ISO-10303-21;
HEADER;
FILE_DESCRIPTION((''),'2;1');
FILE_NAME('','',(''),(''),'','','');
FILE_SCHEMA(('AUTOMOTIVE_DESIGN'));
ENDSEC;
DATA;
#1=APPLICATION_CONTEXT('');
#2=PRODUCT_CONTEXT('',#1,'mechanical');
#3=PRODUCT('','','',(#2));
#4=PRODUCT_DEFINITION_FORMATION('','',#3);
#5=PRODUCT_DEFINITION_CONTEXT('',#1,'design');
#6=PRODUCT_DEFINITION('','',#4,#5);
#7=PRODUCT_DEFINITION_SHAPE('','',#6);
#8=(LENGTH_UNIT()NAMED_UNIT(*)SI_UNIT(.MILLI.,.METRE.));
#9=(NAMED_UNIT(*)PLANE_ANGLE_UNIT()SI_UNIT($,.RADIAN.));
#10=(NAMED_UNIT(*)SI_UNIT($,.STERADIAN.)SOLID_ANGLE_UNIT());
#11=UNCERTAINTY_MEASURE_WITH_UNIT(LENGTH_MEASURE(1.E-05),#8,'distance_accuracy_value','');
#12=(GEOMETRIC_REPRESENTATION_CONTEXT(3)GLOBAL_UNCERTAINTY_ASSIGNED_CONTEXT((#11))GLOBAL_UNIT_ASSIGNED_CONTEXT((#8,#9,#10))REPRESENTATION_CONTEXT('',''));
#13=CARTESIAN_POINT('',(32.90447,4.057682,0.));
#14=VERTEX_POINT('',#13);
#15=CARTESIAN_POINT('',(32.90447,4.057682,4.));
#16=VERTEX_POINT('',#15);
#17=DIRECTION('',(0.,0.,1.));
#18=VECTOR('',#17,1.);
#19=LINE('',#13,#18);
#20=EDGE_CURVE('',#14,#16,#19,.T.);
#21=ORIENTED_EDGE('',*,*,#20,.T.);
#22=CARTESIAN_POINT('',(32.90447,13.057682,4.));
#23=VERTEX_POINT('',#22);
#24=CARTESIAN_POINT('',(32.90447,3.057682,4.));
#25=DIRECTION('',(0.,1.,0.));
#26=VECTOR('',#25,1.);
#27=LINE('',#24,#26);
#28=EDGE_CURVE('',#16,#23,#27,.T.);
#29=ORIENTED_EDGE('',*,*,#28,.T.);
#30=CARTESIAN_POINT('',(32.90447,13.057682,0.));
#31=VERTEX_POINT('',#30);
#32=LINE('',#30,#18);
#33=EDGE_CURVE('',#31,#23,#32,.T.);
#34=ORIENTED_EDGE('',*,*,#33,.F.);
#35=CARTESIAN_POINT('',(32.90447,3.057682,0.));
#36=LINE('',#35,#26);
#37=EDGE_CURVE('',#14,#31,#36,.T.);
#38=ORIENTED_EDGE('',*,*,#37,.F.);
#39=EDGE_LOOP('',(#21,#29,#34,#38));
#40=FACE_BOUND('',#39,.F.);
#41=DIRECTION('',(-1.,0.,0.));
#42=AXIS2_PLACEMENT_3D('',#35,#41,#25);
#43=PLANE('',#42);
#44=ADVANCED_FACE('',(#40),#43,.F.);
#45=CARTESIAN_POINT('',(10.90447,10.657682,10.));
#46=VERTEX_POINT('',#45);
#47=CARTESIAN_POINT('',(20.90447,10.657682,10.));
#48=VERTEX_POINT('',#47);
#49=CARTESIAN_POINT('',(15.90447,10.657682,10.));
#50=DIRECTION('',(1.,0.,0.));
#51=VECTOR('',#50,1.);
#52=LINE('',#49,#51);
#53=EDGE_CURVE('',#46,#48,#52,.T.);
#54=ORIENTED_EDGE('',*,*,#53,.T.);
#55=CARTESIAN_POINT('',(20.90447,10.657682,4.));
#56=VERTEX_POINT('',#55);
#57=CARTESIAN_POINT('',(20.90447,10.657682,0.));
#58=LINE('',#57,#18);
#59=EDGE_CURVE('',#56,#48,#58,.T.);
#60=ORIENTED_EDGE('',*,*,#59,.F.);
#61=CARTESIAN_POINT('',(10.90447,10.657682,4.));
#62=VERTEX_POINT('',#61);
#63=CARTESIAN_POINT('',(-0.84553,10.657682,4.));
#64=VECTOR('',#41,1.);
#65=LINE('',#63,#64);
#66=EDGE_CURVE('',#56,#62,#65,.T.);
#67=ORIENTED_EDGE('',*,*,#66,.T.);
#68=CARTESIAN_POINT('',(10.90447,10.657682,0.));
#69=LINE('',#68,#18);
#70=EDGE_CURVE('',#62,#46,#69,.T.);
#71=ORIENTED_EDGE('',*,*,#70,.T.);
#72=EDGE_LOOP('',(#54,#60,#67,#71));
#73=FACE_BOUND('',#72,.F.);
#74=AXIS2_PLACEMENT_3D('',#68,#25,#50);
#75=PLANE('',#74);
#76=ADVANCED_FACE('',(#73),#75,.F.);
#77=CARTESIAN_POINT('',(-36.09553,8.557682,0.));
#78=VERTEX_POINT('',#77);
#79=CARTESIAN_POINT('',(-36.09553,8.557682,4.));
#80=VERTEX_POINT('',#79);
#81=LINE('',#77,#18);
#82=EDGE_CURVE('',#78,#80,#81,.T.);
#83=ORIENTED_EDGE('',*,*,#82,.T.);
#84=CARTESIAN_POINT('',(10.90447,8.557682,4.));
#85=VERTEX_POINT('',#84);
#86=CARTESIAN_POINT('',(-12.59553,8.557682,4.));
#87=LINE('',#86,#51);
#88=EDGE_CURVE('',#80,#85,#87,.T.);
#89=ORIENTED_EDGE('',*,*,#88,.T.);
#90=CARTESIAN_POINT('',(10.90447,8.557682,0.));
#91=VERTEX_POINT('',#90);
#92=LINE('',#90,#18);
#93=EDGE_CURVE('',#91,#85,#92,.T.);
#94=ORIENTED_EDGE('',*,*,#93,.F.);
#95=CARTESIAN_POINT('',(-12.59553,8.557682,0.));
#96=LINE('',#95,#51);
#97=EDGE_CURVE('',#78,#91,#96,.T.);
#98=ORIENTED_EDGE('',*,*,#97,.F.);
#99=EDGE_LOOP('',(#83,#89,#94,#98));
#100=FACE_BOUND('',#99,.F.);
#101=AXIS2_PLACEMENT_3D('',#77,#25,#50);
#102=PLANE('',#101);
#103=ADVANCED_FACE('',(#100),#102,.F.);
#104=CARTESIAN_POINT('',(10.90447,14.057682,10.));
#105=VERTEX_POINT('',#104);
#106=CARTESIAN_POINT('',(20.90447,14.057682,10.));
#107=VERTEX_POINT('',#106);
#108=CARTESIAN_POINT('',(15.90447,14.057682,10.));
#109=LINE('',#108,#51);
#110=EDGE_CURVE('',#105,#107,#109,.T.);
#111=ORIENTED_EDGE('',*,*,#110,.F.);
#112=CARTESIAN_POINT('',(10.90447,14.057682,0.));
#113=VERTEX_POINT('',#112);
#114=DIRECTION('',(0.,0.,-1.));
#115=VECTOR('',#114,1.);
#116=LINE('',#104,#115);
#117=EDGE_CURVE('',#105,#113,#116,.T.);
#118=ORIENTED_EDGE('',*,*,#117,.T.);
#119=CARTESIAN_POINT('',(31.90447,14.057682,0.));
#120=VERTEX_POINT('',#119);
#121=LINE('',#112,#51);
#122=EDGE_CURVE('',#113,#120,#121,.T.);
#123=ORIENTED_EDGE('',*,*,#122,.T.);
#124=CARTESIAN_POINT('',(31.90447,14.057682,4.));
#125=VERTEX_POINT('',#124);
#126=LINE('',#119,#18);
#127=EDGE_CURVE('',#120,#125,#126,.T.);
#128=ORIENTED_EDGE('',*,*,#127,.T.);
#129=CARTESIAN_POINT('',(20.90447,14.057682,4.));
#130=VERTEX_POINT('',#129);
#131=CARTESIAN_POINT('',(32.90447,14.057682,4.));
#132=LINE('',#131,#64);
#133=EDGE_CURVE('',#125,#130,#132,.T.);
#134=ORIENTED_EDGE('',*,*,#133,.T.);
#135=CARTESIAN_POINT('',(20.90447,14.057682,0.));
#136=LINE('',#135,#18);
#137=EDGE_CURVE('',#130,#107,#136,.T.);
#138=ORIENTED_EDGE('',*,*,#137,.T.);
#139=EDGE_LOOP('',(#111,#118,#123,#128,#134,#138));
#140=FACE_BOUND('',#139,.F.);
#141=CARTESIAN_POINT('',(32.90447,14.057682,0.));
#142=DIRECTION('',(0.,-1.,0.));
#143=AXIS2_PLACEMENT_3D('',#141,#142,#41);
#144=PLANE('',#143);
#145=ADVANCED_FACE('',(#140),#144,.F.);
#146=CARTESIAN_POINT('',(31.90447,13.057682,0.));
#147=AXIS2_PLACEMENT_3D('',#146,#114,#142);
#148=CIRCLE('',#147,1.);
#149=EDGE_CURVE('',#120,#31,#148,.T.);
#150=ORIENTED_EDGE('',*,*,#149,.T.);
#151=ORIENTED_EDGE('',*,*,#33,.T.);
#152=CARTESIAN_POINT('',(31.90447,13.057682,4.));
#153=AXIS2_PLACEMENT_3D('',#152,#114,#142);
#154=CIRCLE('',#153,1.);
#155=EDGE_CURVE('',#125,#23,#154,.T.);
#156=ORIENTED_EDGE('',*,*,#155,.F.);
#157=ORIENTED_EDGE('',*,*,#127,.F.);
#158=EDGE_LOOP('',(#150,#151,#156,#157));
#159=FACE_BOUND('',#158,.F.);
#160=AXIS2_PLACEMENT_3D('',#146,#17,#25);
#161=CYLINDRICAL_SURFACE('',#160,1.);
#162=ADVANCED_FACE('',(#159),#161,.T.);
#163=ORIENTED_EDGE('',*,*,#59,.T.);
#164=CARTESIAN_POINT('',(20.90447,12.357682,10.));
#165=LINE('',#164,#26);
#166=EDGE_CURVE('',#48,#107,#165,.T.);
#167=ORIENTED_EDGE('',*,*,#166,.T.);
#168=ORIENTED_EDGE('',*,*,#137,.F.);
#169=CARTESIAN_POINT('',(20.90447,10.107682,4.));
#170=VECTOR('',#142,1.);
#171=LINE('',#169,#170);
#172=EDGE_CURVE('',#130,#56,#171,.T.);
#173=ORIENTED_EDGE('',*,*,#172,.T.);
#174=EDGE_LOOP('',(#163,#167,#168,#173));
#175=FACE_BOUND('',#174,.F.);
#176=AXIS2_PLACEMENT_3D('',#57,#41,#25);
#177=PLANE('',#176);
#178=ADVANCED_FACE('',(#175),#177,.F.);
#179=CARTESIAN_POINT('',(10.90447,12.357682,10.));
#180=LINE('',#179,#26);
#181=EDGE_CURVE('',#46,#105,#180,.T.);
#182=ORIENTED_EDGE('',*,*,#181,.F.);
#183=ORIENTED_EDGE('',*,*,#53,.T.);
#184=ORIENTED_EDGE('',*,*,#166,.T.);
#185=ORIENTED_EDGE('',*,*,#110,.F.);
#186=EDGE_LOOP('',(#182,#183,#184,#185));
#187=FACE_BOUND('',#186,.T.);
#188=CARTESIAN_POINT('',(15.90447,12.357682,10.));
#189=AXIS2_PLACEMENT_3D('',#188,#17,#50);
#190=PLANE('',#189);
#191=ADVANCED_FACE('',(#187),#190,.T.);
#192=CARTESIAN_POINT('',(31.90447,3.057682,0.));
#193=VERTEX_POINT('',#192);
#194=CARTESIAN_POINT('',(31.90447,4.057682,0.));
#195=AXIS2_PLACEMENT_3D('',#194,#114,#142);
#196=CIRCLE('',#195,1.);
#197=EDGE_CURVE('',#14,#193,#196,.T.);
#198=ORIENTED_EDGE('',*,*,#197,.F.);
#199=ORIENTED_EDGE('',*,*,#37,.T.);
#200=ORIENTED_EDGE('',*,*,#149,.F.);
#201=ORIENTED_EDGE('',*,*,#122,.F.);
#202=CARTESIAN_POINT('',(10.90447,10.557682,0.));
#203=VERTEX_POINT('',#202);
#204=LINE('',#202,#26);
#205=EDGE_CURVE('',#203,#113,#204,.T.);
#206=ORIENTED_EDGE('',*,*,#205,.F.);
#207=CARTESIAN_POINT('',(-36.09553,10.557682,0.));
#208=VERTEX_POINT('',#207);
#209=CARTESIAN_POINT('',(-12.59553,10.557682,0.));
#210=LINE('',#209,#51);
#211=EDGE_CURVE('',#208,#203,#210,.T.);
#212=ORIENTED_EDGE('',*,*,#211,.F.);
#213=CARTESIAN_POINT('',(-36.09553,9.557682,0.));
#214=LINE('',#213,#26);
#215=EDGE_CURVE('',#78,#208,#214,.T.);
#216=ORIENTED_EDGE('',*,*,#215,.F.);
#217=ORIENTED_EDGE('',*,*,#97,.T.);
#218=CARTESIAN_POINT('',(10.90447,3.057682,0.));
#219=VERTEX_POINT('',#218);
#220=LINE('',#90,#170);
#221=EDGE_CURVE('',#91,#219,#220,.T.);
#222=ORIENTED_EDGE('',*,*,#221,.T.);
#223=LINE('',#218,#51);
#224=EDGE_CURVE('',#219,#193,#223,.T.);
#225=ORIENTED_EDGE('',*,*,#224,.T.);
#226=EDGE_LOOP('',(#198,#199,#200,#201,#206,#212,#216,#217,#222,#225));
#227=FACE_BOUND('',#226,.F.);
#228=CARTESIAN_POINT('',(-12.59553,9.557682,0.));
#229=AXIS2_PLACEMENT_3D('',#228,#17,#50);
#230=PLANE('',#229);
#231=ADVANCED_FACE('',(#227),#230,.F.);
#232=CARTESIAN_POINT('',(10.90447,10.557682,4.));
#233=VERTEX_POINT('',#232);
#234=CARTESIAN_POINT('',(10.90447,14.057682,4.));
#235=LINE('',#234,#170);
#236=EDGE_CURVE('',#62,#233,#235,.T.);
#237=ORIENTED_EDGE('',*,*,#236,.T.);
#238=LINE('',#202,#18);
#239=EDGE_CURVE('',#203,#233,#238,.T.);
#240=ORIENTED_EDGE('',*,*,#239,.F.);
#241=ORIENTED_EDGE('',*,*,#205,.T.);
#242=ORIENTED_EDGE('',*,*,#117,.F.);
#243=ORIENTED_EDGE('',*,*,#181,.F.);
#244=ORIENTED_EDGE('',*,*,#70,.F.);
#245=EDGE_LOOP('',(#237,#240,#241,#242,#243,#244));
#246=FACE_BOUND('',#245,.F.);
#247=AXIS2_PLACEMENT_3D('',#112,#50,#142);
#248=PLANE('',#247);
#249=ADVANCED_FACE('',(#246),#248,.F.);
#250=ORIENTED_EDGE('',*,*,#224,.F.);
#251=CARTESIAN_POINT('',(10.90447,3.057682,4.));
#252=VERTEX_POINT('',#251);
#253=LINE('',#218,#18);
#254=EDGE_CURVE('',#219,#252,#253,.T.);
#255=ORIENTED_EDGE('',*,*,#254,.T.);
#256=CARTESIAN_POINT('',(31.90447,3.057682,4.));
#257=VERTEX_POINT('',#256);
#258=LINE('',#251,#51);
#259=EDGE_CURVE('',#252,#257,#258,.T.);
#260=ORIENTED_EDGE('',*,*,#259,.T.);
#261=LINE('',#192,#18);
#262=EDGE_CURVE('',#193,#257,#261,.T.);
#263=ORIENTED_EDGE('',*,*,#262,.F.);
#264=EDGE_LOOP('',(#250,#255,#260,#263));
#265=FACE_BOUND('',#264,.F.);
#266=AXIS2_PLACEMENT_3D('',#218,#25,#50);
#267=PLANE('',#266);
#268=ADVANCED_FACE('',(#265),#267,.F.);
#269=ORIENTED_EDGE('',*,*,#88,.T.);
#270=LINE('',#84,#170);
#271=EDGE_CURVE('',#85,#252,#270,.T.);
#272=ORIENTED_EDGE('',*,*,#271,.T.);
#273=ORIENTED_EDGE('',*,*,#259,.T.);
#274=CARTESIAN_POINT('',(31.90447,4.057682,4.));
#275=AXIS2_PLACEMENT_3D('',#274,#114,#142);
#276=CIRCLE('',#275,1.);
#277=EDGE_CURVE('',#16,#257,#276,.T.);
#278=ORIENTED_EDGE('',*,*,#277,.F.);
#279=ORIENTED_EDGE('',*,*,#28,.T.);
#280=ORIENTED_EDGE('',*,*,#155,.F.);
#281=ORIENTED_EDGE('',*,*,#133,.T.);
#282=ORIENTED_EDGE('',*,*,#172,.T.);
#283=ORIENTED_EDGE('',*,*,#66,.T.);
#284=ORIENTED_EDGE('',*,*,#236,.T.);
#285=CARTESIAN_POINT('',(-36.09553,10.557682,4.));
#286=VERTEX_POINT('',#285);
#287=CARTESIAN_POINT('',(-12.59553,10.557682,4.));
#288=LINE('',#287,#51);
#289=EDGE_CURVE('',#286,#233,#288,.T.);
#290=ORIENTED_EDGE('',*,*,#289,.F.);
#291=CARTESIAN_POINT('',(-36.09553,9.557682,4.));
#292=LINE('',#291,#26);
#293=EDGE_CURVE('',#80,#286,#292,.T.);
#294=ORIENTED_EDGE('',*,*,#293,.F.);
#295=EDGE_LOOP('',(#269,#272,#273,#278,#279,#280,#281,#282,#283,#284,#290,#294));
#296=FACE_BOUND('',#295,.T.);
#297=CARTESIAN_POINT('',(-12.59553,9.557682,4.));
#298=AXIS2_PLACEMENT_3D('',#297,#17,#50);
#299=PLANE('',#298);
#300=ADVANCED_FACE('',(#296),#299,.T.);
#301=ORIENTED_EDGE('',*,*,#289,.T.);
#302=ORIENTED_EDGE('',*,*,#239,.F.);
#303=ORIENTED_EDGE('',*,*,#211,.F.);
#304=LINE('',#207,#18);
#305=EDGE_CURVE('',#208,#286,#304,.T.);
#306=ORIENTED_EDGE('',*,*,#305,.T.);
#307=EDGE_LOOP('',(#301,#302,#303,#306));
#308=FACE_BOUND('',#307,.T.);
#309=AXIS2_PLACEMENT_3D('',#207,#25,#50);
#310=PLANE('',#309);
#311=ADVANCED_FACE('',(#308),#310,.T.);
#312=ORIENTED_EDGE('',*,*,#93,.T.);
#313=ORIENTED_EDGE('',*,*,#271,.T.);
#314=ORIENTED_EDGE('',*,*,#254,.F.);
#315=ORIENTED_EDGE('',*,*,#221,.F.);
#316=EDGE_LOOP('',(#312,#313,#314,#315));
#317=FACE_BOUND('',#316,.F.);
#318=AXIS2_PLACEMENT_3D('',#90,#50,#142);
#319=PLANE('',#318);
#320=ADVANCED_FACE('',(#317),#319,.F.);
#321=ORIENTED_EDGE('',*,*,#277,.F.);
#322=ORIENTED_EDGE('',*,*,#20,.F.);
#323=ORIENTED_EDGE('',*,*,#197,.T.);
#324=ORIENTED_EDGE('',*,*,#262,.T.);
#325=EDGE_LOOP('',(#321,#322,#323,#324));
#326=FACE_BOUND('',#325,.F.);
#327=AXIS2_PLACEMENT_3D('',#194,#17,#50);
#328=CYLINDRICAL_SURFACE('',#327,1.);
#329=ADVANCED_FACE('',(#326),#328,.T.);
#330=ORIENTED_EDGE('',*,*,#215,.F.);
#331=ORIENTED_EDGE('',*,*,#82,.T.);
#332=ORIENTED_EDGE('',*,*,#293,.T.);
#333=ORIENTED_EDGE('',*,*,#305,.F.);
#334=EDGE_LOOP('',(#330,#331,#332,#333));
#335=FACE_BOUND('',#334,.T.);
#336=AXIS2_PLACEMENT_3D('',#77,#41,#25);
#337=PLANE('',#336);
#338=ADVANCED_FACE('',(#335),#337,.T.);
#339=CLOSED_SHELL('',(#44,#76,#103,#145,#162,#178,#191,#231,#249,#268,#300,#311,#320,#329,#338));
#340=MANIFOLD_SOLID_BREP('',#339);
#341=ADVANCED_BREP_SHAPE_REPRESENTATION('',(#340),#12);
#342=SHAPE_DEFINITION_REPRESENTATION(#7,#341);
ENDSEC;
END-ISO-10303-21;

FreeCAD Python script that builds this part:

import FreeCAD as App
import Part
import Sketcher
from FreeCAD import Vector


def edges_at(feature, points):
    """Names of the edges that pass closest to the given points."""
    edges = feature.Shape.Edges
    near = lambda p: min(range(len(edges)), key=lambda i: edges[i].distToShape(Part.Vertex(*p))[0])
    return sorted({f"Edge{near(p) + 1}" for p in points})


def add_polygon(sketch, points):
    """Adds a closed chain of lines whose ends are joined by coincident constraints."""
    first, n = sketch.GeometryCount, len(points)
    for a, b in zip(points, points[1:] + points[:1]):
        sketch.addGeometry(Part.LineSegment(App.Vector(*a, 0), App.Vector(*b, 0)), False)
    for i in range(n):
        sketch.addConstraint(Sketcher.Constraint("Coincident", first + i, 2, first + (i + 1) % n, 1))

doc = App.newDocument("Part")
body = doc.addObject("PartDesign::Body", "Body")

sketch1 = doc.addObject("Sketcher::SketchObject", "Sketch")
body.addObject(sketch1)
sketch1.AttachmentSupport = (doc.XY_Plane, [""])
sketch1.MapMode = "FlatFace"
add_polygon(sketch1, [(-36.1, 10.6), (-36.1, 8.6), (10.9, 8.6), (10.9, 3.1), (32.9, 3.1), (32.9, 14.1), (10.9, 14.1), (10.9, 10.6)])
sketch1.addConstraint([
    Sketcher.Constraint("Vertical", 0),
    Sketcher.Constraint("Horizontal", 1),
    Sketcher.Constraint("Vertical", 2),
    Sketcher.Constraint("Horizontal", 3),
    Sketcher.Constraint("Vertical", 4),
    Sketcher.Constraint("Horizontal", 5),
    Sketcher.Constraint("Vertical", 6),
    Sketcher.Constraint("Horizontal", 7),
    Sketcher.Constraint("Vertical", 2, 2, 5, 2),
    Sketcher.Constraint("DistanceX", 1, 1, 1, 2, 47.0),
    Sketcher.Constraint("DistanceX", 3, 1, 3, 2, 22.0),
    Sketcher.Constraint("DistanceY", 0, 2, 0, 1, 2.0),
    Sketcher.Constraint("DistanceY", 4, 1, 4, 2, 11.0),
    Sketcher.Constraint("DistanceY", 2, 2, 2, 1, 5.5),
    Sketcher.Constraint("DistanceX", 0, 2, -1, 1, 36.09553),
    Sketcher.Constraint("DistanceY", -1, 1, 2, 2, 3.057682),
])
pad1 = doc.addObject("PartDesign::Pad", "Pad")
body.addObject(pad1)
pad1.Profile = sketch1
pad1.Length = 4

sketch2 = doc.addObject("Sketcher::SketchObject", "Sketch001")
body.addObject(sketch2)
sketch2.AttachmentSupport = (doc.XY_Plane, [""])
sketch2.MapMode = "FlatFace"
add_polygon(sketch2, [(10.9, 14.1), (10.9, 10.7), (20.9, 10.7), (20.9, 14.1)])
sketch2.addConstraint([
    Sketcher.Constraint("Vertical", 0),
    Sketcher.Constraint("Horizontal", 1),
    Sketcher.Constraint("Vertical", 2),
    Sketcher.Constraint("Horizontal", 3),
    Sketcher.Constraint("DistanceX", 1, 1, 1, 2, 10.0),
    Sketcher.Constraint("DistanceY", 0, 2, 0, 1, 3.4),
    Sketcher.Constraint("DistanceX", -1, 1, 0, 2, 10.90447),
    Sketcher.Constraint("DistanceY", -1, 1, 0, 2, 10.657682),
])
pad2 = doc.addObject("PartDesign::Pad", "Pad001")
body.addObject(pad2)
pad2.Profile = sketch2
pad2.Length = 10
doc.recompute()

fillet = doc.addObject("PartDesign::Fillet", "Fillet")
body.addObject(fillet)
fillet.Base = (pad2, edges_at(pad2, [(32.904, 3.058, 2), (32.904, 14.058, 2)]))
fillet.Radius = 1

doc.recompute()
